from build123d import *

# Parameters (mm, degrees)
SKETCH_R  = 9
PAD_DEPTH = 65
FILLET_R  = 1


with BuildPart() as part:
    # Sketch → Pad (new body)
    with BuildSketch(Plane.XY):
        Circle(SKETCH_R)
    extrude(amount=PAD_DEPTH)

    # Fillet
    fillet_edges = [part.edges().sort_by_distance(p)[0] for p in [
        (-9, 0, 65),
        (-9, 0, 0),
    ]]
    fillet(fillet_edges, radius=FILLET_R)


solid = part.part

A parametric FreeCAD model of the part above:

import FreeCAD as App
import Part
import Sketcher


def edges_at(feature, points):
    """Names of the edges that pass closest to the given points."""
    edges = feature.Shape.Edges
    near = lambda p: min(range(len(edges)), key=lambda i: edges[i].distToShape(Part.Vertex(*p))[0])
    return sorted({f"Edge{near(p) + 1}" for p in points})

doc = App.newDocument("Part")
body = doc.addObject("PartDesign::Body", "Body")

# Sketch on XY plane
sketch1 = body.newObject("Sketcher::SketchObject", "Sketch")
sketch1.AttachmentSupport = (doc.getObject("XY_Plane"), [""])
sketch1.MapMode = "FlatFace"
sketch1.addGeometry(Part.Circle(App.Vector(0, 0, 0), App.Vector(0, 0, 1), 9), False)
sketch1.addConstraint([
    Sketcher.Constraint("Coincident", 0, 3, -1, 1),
    Sketcher.Constraint("Diameter", 0, 18.0),
])
pad1 = body.newObject("PartDesign::Pad", "Pad")
pad1.Profile = sketch1
pad1.Length = 65
doc.recompute()

fillet = body.newObject("PartDesign::Fillet", "Fillet")
fillet.Base = (pad1, edges_at(pad1, [(-9, 0, 65), (-9, 0, 0)]))
fillet.Radius = 1

doc.recompute()
